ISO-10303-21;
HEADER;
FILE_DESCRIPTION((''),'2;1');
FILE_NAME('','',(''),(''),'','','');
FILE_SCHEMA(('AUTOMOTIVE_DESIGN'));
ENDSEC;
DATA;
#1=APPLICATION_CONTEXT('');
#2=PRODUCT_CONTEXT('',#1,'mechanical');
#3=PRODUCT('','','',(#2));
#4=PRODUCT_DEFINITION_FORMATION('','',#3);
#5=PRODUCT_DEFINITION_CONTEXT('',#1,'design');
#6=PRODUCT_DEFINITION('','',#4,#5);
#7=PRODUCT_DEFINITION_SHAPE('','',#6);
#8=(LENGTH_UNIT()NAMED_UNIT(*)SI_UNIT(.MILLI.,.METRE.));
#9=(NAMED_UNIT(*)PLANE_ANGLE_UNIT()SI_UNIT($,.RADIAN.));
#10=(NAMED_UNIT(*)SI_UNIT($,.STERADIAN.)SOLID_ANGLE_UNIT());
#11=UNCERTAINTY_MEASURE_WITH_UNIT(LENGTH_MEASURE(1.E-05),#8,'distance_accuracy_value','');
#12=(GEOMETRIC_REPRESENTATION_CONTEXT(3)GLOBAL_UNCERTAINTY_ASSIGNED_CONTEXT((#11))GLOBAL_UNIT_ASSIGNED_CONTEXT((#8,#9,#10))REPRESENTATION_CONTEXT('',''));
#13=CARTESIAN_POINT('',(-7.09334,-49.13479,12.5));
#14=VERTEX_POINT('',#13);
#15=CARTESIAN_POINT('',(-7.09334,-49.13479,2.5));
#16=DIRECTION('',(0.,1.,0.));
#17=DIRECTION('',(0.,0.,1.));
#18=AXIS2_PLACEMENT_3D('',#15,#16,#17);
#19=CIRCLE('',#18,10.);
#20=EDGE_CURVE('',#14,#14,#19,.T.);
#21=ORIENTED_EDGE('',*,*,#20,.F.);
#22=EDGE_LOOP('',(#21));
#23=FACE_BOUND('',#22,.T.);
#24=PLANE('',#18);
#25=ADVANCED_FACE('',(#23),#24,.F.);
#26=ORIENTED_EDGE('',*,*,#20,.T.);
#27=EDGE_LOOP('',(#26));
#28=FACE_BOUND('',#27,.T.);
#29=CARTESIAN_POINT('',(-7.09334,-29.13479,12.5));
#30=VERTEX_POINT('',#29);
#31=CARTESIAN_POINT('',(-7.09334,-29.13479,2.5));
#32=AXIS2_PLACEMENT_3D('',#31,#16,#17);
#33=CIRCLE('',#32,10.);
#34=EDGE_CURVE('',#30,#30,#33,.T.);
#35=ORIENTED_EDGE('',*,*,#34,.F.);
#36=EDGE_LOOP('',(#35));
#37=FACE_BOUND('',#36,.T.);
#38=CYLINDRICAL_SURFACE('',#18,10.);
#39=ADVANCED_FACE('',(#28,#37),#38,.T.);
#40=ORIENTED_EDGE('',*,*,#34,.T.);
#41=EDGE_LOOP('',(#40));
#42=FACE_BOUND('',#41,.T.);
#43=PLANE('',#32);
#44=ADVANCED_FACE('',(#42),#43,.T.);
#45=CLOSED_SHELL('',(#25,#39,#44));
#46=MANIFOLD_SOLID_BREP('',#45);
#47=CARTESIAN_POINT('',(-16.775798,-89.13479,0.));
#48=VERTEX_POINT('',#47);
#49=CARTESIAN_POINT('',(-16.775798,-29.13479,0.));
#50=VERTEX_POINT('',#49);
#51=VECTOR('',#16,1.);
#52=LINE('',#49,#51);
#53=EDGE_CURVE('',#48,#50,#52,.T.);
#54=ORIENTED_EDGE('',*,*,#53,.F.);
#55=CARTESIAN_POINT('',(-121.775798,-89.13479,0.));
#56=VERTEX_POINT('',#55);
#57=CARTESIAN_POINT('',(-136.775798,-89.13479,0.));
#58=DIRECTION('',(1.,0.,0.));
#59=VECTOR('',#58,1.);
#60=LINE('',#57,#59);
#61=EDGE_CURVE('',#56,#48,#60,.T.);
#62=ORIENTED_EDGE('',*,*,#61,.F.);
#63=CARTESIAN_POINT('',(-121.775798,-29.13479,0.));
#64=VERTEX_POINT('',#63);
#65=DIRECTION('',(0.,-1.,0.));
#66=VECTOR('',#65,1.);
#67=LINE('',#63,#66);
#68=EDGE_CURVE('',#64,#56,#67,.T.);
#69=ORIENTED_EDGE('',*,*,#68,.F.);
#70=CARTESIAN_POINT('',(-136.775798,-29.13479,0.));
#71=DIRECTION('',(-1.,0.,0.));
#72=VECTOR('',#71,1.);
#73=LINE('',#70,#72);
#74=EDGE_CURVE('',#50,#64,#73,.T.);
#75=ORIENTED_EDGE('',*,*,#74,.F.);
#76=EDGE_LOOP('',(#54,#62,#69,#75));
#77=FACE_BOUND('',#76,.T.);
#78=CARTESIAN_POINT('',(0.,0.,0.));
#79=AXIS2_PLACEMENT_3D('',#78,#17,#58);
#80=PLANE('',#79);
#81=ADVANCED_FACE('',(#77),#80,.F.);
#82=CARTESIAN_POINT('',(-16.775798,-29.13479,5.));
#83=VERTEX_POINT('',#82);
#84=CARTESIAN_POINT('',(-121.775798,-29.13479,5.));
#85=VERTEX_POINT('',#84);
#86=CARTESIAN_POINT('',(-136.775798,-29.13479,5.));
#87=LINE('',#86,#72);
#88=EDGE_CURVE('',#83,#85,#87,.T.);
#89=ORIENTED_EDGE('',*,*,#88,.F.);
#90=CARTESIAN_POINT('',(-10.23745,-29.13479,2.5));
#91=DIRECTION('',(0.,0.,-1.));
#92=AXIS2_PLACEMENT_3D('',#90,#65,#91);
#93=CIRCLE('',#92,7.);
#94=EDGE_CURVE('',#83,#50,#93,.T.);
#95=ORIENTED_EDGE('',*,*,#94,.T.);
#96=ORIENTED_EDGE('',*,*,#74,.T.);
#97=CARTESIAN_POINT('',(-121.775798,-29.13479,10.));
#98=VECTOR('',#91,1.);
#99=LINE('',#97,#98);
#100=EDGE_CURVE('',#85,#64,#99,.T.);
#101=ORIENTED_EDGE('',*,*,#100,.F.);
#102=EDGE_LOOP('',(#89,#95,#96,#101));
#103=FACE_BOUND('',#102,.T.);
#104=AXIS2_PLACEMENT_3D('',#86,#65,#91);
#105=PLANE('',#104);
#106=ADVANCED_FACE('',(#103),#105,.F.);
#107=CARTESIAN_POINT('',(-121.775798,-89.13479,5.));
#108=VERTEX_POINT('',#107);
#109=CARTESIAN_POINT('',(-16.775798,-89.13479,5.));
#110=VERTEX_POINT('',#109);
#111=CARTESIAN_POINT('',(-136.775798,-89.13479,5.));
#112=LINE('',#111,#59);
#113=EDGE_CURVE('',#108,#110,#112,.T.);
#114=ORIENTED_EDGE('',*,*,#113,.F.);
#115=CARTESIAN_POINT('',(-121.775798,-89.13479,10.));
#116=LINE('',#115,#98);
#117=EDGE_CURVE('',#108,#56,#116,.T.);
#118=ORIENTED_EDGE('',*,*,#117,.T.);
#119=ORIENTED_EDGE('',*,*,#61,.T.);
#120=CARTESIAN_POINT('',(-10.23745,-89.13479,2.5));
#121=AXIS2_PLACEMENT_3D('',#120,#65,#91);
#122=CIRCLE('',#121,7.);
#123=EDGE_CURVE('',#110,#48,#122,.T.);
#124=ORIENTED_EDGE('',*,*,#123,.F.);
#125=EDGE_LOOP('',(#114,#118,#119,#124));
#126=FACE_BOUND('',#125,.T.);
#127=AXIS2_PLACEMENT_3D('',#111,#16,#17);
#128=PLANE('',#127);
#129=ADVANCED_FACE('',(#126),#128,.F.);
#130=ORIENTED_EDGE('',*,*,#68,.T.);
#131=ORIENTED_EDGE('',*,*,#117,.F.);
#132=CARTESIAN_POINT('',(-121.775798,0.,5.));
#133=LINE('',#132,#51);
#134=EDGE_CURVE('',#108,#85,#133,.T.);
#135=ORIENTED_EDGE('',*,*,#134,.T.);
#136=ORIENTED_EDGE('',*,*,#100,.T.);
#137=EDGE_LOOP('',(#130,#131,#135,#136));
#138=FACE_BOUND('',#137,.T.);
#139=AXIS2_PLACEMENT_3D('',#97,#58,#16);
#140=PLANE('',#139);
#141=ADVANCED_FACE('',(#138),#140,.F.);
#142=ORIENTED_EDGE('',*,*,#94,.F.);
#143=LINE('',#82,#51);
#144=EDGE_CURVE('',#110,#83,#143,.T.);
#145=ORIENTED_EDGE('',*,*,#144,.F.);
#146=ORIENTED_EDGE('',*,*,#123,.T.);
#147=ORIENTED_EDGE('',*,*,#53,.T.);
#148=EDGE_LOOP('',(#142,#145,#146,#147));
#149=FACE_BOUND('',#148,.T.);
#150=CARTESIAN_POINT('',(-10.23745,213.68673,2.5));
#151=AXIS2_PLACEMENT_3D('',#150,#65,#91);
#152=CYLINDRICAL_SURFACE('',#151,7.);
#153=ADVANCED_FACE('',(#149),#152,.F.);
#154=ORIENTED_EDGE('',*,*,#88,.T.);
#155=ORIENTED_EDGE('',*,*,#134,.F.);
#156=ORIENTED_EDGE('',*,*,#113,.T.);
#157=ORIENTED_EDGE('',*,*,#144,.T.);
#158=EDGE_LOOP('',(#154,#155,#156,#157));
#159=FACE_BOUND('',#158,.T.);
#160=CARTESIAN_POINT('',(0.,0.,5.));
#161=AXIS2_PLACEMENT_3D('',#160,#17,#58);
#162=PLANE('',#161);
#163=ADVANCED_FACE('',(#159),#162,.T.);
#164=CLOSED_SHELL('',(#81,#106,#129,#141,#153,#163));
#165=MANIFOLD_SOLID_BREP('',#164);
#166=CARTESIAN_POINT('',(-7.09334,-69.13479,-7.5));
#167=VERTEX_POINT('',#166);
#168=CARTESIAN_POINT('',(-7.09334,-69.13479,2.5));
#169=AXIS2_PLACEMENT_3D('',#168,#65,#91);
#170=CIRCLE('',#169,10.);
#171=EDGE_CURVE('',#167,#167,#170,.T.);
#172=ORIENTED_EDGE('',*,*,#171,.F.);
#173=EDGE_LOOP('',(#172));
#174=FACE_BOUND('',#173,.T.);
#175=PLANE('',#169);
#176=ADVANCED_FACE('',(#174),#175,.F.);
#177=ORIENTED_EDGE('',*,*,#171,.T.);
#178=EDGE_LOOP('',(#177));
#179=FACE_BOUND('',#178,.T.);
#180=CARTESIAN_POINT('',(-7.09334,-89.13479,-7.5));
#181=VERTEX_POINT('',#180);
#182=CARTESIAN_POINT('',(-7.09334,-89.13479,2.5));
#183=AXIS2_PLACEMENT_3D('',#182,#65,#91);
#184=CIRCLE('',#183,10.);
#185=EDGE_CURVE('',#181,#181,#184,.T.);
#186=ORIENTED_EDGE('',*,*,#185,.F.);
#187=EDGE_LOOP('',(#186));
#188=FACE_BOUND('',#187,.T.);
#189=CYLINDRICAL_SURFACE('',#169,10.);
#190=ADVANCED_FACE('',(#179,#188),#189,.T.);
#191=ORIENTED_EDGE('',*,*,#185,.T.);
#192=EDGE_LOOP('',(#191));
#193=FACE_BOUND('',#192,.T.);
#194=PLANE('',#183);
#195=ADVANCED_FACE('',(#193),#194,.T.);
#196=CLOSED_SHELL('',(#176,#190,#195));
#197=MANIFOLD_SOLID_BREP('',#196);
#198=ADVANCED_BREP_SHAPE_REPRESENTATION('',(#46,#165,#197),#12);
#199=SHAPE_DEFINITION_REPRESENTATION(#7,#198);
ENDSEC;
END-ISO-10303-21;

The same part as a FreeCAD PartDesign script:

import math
import FreeCAD as App
import Part
import Sketcher


def add_polygon(sketch, points):
    """Adds a closed chain of lines whose ends are joined by coincident constraints."""
    first, n = sketch.GeometryCount, len(points)
    for a, b in zip(points, points[1:] + points[:1]):
        sketch.addGeometry(Part.LineSegment(App.Vector(*a, 0), App.Vector(*b, 0)), False)
    for i in range(n):
        sketch.addConstraint(Sketcher.Constraint("Coincident", first + i, 2, first + (i + 1) % n, 1))

doc = App.newDocument("Part")
body = doc.addObject("PartDesign::Body", "Body")

sketch1 = body.newObject("Sketcher::SketchObject", "Sketch")
sketch1.AttachmentSupport = (doc.getObject("XY_Plane"), [""])
sketch1.MapMode = "FlatFace"
add_polygon(sketch1, [(-137, -29), (-137, -89), (-17, -89), (-17, -29)])
sketch1.addConstraint(Sketcher.Constraint("Vertical", 0))
sketch1.addConstraint(Sketcher.Constraint("Horizontal", 1))
sketch1.addConstraint(Sketcher.Constraint("Vertical", 2))
sketch1.addConstraint(Sketcher.Constraint("Horizontal", 3))
sketch1.addConstraint(Sketcher.Constraint("DistanceX", 1, 1, 1, 2, 120.0))
sketch1.addConstraint(Sketcher.Constraint("DistanceY", 0, 2, 0, 1, 60.0))
sketch1.addConstraint(Sketcher.Constraint("DistanceX", 0, 2, -1, 1, 136.775798))
sketch1.addConstraint(Sketcher.Constraint("DistanceY", 0, 2, -1, 1, 89.13479))
pad1 = body.newObject("PartDesign::Pad", "Pad")
pad1.Profile = sketch1
pad1.Length = 5

sketch2 = body.newObject("Sketcher::SketchObject", "Sketch001")
sketch2.AttachmentSupport = (doc.getObject("XZ_Plane"), [""])
sketch2.MapMode = "FlatFace"
sketch2.AttachmentOffset = App.Placement(App.Vector(0, 0, 29.13479), App.Rotation())
sketch2.addGeometry(Part.LineSegment(App.Vector(73, -234, 0), App.Vector(-17, 0, 0)), False)
sketch2.addGeometry(Part.ArcOfCircle(Part.Circle(App.Vector(-10, 2, 0), App.Vector(0, 0, 1), 7), math.radians(159), math.radians(201)), False)
sketch2.addGeometry(Part.LineSegment(App.Vector(-17, 5, 0), App.Vector(73, 239, 0)), False)
sketch2.addGeometry(Part.LineSegment(App.Vector(73, 239, 0), App.Vector(573, 239, 0)), False)
sketch2.addGeometry(Part.LineSegment(App.Vector(573, 239, 0), App.Vector(573, -234, 0)), False)
sketch2.addGeometry(Part.LineSegment(App.Vector(573, -234, 0), App.Vector(73, -234, 0)), False)
sketch2.addConstraint(Sketcher.Constraint("Tangent", 0, 2, 1, 2))
sketch2.addConstraint(Sketcher.Constraint("Tangent", 1, 1, 2, 1))
sketch2.addConstraint(Sketcher.Constraint("Coincident", 2, 2, 3, 1))
sketch2.addConstraint(Sketcher.Constraint("Coincident", 3, 2, 4, 1))
sketch2.addConstraint(Sketcher.Constraint("Coincident", 4, 2, 5, 1))
sketch2.addConstraint(Sketcher.Constraint("Coincident", 5, 2, 0, 1))
sketch2.addConstraint(Sketcher.Constraint("Horizontal", 3))
sketch2.addConstraint(Sketcher.Constraint("Vertical", 4))
sketch2.addConstraint(Sketcher.Constraint("Horizontal", 5))
sketch2.addConstraint(Sketcher.Constraint("PointOnObject", 0, 2, -1))
sketch2.addConstraint(Sketcher.Constraint("Vertical", 0, 2, 1, 1))
sketch2.addConstraint(Sketcher.Constraint("Vertical", 2, 2, 5, 2))
sketch2.addConstraint(Sketcher.Constraint("Radius", 1, 7.0))
sketch2.addConstraint(Sketcher.Constraint("DistanceY", -1, 1, 1, 1, 5.0))
sketch2.addConstraint(Sketcher.Constraint("DistanceX", 0, 2, -1, 1, 16.775798))
sketch2.addConstraint(Sketcher.Constraint("DistanceX", 3, 1, 3, 2, 500.416486))
sketch2.addConstraint(Sketcher.Constraint("DistanceY", 4, 2, 4, 1, 472.413905))
pocket1 = body.newObject("PartDesign::Pocket", "Pocket")
pocket1.Profile = sketch2
pocket1.Type = "ThroughAll"
pocket1.Midplane = True

sketch3 = body.newObject("Sketcher::SketchObject", "Sketch002")
sketch3.AttachmentSupport = (doc.getObject("XY_Plane"), [""])
sketch3.MapMode = "FlatFace"
add_polygon(sketch3, [(-122, -29), (-122, -89), (-137, -89), (-137, -29)])
sketch3.addConstraint(Sketcher.Constraint("Vertical", 0))
sketch3.addConstraint(Sketcher.Constraint("Horizontal", 1))
sketch3.addConstraint(Sketcher.Constraint("Vertical", 2))
sketch3.addConstraint(Sketcher.Constraint("Horizontal", 3))
sketch3.addConstraint(Sketcher.Constraint("DistanceX", 1, 2, 1, 1, 15.0))
sketch3.addConstraint(Sketcher.Constraint("DistanceY", 0, 2, 0, 1, 60.0))
sketch3.addConstraint(Sketcher.Constraint("DistanceX", 0, 2, -1, 1, 121.775798))
sketch3.addConstraint(Sketcher.Constraint("DistanceY", 0, 2, -1, 1, 89.13479))
pocket2 = body.newObject("PartDesign::Pocket", "Pocket001")
pocket2.Profile = sketch3
pocket2.Length = 10
pocket2.Reversed = True
body2 = doc.addObject("PartDesign::Body", "Body001")

sketch4 = body2.newObject("Sketcher::SketchObject", "Sketch003")
sketch4.AttachmentSupport = (doc.getObject("XZ_Plane001"), [""])
sketch4.MapMode = "FlatFace"
sketch4.AttachmentOffset = App.Placement(App.Vector(0, 0, 29.13479), App.Rotation())
sketch4.addGeometry(Part.Circle(App.Vector(-7, 2, 0), App.Vector(0, 0, 1), 10), False)
sketch4.addConstraint(Sketcher.Constraint("Diameter", 0, 20.0))
sketch4.addConstraint(Sketcher.Constraint("DistanceY", -1, 1, 0, 3, 2.5))
sketch4.addConstraint(Sketcher.Constraint("DistanceX", 0, 3, -1, 1, 7.09334))
pad2 = body2.newObject("PartDesign::Pad", "Pad001")
pad2.Profile = sketch4
pad2.Length = 20
body3 = doc.addObject("PartDesign::Body", "Body002")

sketch5 = body3.newObject("Sketcher::SketchObject", "Sketch004")
sketch5.AttachmentSupport = (doc.getObject("XZ_Plane002"), [""])
sketch5.MapMode = "FlatFace"
sketch5.AttachmentOffset = App.Placement(App.Vector(0, 0, 89.13479), App.Rotation())
sketch5.addGeometry(Part.Circle(App.Vector(-7, 2, 0), App.Vector(0, 0, 1), 10), False)
sketch5.addConstraint(Sketcher.Constraint("Diameter", 0, 20.0))
sketch5.addConstraint(Sketcher.Constraint("DistanceY", -1, 1, 0, 3, 2.5))
sketch5.addConstraint(Sketcher.Constraint("DistanceX", 0, 3, -1, 1, 7.09334))
pad3 = body3.newObject("PartDesign::Pad", "Pad002")
pad3.Profile = sketch5
pad3.Length = 20
pad3.Reversed = True

doc.recompute()
